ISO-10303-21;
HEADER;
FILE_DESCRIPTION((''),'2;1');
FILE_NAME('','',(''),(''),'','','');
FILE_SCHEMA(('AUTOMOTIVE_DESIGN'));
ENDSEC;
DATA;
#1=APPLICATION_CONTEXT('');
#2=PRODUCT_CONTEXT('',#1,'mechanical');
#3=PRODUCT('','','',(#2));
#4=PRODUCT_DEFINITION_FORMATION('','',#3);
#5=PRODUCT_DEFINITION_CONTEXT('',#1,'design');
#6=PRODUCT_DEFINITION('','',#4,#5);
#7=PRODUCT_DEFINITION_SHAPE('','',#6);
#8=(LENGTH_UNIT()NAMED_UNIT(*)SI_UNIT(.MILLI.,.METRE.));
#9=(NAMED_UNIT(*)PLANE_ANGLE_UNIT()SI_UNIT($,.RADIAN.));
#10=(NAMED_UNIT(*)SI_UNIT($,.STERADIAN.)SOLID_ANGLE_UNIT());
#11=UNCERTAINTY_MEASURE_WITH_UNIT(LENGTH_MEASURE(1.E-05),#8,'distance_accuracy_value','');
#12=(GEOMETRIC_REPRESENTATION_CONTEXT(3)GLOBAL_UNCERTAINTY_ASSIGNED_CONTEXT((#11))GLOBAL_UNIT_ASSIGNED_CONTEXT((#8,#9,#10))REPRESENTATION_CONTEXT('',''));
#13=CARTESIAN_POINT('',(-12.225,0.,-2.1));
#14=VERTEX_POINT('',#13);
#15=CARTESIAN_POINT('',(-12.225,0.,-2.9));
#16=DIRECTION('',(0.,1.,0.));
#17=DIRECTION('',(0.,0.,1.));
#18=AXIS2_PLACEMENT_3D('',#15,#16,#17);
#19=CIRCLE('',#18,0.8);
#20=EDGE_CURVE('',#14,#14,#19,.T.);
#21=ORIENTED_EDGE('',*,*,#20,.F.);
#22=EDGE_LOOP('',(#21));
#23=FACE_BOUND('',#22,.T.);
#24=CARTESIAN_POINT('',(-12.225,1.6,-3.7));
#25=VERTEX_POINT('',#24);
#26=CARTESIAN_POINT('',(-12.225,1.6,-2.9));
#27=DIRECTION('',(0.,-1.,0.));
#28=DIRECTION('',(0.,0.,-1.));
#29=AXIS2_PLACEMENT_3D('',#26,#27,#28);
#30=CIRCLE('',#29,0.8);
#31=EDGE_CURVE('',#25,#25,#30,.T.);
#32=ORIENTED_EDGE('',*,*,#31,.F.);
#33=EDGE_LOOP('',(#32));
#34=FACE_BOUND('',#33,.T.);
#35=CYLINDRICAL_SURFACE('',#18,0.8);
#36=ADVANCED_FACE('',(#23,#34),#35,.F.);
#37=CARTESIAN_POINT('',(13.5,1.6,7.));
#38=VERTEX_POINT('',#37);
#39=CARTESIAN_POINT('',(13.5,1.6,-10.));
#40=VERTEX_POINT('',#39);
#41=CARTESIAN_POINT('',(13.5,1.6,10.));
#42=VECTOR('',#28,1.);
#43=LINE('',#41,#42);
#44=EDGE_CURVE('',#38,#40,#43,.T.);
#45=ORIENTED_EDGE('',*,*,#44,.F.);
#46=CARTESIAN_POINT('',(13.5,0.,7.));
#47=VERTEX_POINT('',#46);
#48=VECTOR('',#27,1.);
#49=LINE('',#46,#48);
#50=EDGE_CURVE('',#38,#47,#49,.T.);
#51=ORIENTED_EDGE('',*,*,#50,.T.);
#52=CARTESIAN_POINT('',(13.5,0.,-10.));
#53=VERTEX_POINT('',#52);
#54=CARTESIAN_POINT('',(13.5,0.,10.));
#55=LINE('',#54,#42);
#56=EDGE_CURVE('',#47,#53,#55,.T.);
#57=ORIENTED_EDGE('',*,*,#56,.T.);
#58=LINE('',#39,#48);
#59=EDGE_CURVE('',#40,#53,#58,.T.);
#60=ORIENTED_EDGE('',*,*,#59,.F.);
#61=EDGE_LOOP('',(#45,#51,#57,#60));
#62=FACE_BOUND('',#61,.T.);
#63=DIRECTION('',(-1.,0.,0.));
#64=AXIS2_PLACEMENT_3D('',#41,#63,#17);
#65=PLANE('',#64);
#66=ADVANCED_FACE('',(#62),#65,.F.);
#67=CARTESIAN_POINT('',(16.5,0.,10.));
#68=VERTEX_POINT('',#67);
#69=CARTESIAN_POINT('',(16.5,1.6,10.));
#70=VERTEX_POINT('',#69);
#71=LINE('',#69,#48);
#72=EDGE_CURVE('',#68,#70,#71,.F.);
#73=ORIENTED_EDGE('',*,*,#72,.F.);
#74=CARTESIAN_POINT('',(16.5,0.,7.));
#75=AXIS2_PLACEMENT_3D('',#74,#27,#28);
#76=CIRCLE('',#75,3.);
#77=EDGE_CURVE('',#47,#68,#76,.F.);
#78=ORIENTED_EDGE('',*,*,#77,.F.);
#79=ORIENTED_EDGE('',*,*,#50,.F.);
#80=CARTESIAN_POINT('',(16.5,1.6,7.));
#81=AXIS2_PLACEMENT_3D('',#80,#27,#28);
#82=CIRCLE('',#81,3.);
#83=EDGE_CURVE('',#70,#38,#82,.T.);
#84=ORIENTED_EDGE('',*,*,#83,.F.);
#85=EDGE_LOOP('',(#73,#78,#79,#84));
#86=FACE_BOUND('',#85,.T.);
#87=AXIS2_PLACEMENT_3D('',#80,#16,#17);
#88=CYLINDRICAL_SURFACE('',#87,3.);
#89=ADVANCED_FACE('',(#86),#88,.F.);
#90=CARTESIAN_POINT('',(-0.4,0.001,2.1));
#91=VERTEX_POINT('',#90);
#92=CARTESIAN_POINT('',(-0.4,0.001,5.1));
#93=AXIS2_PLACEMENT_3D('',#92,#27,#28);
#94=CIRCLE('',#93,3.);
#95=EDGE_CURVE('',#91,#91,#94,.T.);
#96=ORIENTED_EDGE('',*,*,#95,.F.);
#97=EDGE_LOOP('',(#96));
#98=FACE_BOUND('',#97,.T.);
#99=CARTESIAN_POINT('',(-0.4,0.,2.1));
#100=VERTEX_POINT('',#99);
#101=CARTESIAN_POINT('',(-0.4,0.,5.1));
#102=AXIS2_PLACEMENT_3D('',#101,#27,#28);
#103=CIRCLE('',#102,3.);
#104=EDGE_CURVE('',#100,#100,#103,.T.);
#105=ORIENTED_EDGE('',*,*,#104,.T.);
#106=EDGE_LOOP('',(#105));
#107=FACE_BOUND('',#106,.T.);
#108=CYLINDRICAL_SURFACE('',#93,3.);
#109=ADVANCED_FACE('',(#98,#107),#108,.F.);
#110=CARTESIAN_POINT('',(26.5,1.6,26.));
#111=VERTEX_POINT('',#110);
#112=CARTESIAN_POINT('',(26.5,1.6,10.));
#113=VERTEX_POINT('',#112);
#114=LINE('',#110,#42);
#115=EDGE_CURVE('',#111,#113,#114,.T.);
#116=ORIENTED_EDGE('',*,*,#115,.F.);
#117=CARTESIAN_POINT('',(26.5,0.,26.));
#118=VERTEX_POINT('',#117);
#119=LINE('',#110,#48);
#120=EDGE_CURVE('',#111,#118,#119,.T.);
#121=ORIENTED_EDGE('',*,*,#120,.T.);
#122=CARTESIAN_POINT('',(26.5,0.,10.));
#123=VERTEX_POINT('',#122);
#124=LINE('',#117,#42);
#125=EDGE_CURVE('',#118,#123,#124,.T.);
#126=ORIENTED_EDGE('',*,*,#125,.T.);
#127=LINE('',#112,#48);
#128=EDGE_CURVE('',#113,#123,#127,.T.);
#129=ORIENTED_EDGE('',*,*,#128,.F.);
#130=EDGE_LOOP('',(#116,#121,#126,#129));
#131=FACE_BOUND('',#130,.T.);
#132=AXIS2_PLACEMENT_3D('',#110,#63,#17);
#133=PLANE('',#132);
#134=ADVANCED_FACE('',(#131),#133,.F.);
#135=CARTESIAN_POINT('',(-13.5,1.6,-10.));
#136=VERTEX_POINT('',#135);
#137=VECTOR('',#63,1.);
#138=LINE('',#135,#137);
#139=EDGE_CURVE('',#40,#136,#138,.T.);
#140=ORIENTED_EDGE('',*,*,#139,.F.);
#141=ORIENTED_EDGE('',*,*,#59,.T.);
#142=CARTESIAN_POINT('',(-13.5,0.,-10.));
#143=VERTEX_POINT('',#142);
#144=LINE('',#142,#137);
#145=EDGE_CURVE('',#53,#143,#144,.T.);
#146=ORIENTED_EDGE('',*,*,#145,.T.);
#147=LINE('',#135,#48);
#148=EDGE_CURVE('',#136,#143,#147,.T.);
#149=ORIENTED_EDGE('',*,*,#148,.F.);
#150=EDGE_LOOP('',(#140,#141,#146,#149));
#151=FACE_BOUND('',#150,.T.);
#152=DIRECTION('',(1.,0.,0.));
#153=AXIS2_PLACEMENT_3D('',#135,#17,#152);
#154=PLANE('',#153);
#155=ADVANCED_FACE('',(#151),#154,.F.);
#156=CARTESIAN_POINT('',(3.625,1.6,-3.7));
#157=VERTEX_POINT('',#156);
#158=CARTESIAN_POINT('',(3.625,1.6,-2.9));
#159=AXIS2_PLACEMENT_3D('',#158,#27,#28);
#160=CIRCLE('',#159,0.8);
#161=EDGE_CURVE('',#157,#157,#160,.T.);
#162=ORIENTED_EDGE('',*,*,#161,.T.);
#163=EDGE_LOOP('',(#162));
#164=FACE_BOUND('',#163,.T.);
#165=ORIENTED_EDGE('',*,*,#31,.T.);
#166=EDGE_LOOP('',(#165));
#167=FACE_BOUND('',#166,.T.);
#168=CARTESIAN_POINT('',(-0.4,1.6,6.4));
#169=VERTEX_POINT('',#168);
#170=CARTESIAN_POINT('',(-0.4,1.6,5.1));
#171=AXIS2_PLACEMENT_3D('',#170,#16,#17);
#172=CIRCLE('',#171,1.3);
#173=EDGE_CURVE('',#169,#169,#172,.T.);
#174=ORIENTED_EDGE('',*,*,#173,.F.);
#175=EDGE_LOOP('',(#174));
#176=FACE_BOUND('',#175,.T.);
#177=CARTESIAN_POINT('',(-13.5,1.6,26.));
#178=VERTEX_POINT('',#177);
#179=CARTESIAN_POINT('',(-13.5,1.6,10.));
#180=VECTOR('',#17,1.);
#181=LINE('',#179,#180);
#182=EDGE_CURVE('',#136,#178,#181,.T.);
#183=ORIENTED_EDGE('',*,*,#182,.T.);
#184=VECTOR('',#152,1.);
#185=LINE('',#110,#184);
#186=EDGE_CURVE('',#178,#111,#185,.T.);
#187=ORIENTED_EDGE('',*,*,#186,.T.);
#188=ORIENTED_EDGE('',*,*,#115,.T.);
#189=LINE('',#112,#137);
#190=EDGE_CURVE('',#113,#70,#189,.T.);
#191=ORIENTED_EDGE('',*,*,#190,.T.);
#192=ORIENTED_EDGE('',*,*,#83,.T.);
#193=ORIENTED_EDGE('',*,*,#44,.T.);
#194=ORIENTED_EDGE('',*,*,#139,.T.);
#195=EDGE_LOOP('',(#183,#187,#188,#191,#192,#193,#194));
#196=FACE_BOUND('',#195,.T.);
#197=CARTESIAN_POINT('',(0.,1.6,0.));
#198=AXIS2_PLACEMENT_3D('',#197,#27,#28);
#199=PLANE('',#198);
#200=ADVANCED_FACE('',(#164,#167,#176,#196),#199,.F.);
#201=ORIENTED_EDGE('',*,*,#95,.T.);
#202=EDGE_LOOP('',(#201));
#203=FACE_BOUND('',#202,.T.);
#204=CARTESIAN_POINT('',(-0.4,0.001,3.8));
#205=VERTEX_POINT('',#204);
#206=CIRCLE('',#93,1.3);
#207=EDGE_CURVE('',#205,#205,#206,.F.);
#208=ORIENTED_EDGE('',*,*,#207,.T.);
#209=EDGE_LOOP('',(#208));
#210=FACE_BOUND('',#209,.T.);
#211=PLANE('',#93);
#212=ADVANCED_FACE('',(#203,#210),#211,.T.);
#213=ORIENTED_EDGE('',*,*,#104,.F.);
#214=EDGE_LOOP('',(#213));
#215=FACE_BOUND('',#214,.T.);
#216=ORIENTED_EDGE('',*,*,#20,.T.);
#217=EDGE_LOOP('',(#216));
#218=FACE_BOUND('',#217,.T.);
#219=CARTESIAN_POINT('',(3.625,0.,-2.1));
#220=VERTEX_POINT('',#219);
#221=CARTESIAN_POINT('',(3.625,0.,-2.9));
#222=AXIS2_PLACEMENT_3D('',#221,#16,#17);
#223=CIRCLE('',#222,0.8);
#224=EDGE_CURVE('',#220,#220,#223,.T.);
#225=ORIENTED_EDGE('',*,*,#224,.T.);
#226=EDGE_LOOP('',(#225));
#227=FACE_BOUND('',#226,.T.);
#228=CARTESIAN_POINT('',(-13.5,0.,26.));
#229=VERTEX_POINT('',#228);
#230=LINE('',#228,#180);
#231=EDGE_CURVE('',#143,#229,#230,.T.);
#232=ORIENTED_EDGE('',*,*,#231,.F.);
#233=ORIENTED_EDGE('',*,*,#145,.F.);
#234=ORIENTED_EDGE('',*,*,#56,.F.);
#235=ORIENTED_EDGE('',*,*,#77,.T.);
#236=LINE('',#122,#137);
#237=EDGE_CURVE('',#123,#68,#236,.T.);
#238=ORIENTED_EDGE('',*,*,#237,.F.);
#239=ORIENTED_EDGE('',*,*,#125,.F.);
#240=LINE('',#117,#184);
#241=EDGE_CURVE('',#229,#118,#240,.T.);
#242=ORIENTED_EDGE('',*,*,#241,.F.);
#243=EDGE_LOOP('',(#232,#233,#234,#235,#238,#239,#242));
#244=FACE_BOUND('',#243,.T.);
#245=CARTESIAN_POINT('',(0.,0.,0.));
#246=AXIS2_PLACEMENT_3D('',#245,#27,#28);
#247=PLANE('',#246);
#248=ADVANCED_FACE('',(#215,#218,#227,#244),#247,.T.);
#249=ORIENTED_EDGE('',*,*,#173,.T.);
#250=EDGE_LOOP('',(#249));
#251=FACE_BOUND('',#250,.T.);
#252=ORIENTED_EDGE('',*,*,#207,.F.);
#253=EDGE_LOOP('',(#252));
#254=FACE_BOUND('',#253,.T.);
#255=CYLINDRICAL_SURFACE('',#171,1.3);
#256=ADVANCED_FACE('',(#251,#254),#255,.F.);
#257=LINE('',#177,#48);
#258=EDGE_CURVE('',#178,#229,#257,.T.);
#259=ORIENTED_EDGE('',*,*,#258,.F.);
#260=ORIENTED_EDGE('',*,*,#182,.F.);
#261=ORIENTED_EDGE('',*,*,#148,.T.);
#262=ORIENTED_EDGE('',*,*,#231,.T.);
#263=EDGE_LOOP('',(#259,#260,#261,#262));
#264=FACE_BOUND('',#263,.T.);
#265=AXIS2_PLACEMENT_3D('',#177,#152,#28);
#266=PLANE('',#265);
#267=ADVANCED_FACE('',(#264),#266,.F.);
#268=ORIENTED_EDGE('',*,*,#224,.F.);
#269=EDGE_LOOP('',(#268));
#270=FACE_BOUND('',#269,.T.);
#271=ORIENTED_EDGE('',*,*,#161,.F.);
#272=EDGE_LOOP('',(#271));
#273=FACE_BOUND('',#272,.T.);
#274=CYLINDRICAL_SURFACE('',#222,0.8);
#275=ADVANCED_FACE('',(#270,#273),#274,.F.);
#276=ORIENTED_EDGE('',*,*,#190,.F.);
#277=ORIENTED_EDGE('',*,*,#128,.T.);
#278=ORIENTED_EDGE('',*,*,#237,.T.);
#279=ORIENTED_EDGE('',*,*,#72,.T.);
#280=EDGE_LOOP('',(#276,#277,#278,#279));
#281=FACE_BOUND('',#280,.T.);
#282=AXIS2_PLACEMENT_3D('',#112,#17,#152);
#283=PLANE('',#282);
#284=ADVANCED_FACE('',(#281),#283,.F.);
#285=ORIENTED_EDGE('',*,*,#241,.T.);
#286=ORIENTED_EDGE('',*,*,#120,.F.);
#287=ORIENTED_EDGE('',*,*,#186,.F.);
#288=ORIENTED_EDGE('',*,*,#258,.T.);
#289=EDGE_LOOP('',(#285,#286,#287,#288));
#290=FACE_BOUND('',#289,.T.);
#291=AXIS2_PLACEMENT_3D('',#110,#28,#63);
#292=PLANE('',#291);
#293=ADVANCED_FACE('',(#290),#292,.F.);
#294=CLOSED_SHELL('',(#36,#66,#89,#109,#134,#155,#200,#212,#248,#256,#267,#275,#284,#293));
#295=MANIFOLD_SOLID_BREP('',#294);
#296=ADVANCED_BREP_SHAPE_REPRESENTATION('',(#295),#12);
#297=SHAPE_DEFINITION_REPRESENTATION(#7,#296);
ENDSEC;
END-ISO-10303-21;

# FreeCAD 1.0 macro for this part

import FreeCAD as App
import Part
import Sketcher

V = App.Vector
Q = App.Units.Quantity


def edges_at(feature, points):
    """Names of the edges that pass closest to the given points."""
    edges = feature.Shape.Edges
    near = lambda p: min(range(len(edges)), key=lambda i: edges[i].distToShape(Part.Vertex(*p))[0])
    return sorted({f"Edge{near(p) + 1}" for p in points})


def add_polygon(sketch, points):
    """Adds a closed chain of lines whose ends are joined by coincident constraints."""
    first, n = sketch.GeometryCount, len(points)
    for a, b in zip(points, points[1:] + points[:1]):
        sketch.addGeometry(Part.LineSegment(App.Vector(*a, 0), App.Vector(*b, 0)), False)
    for i in range(n):
        sketch.addConstraint(Sketcher.Constraint("Coincident", first + i, 2, first + (i + 1) % n, 1))

doc = App.newDocument("Part")
body = doc.addObject("PartDesign::Body", "Body")

# Sketch on XZ plane
sketch1 = doc.addObject("Sketcher::SketchObject", "Sketch")
body.addObject(sketch1)
sketch1.AttachmentSupport = (doc.XZ_Plane, [""])
sketch1.MapMode = "FlatFace"
add_polygon(sketch1, [(-14, -10), (-14, 26), (26, 26), (26, 10), (14, 10), (14, -10)])  # lines 0-5
sketch1.addConstraint(Sketcher.Constraint("Vertical", 0))
sketch1.addConstraint(Sketcher.Constraint("Horizontal", 1))
sketch1.addConstraint(Sketcher.Constraint("Vertical", 2))
sketch1.addConstraint(Sketcher.Constraint("Horizontal", 3))
sketch1.addConstraint(Sketcher.Constraint("Vertical", 4))
sketch1.addConstraint(Sketcher.Constraint("Horizontal", 5))
sketch1.addConstraint(Sketcher.Constraint("Symmetric", 3, 2, 5, 2, -1, 1))
sketch1.addConstraint(Sketcher.Constraint("DistanceX", 1, 1, 1, 2, Q("40 mm")))
sketch1.addConstraint(Sketcher.Constraint("DistanceX", 3, 2, 3, 1, Q("13 mm")))
sketch1.addConstraint(Sketcher.Constraint("DistanceY", 0, 1, 0, 2, Q("36 mm")))
sketch1.addConstraint(Sketcher.Constraint("DistanceY", 2, 2, 2, 1, Q("16 mm")))
pad1 = doc.addObject("PartDesign::Pad", "Pad")
body.addObject(pad1)
pad1.Profile = sketch1
pad1.Length = 1.6
pad1.Reversed = True
doc.recompute()

fillet = doc.addObject("PartDesign::Fillet", "Fillet")
body.addObject(fillet)
fillet.Base = (pad1, edges_at(pad1, [(13.5, 0.8, 10)]))
fillet.Radius = 3

# Sketch on XZ plane
sketch2 = doc.addObject("Sketcher::SketchObject", "Sketch001")
body.addObject(sketch2)
sketch2.AttachmentSupport = (doc.XZ_Plane, [""])
sketch2.MapMode = "FlatFace"
sketch2.AttachmentOffset = App.Placement(V(0, 0, -1.6), App.Rotation())
sketch2.addGeometry(Part.Circle(V(-0.4, 5.1, 0), V(0, 0, 1), 1.3), False)
sketch2.addConstraint(Sketcher.Constraint("Diameter", 0, Q("2.6 mm")))
sketch2.addConstraint(Sketcher.Constraint("DistanceX", 0, 3, -1, 1, Q("0.4 mm")))
sketch2.addConstraint(Sketcher.Constraint("DistanceY", -1, 1, 0, 3, Q("5.1 mm")))
doc.recompute()
hole = doc.addObject("PartDesign::Hole", "Hole")
body.addObject(hole)
hole.Profile = sketch2
hole.ThreadType = "None"
hole.Diameter = 2.6
hole.DepthType = "ThroughAll"
hole.Reversed = True

# Sketch on XZ plane
sketch3 = doc.addObject("Sketcher::SketchObject", "Sketch002")
body.addObject(sketch3)
sketch3.AttachmentSupport = (doc.XZ_Plane, [""])
sketch3.MapMode = "FlatFace"
sketch3.AttachmentOffset = App.Placement(V(0, 0, -1.6), App.Rotation())
sketch3.addGeometry(Part.Circle(V(-12.2, -2.9, 0), V(0, 0, 1), 0.8), False)
sketch3.addGeometry(Part.Circle(V(3.6, -2.9, 0), V(0, 0, 1), 0.8), False)
sketch3.addConstraint(Sketcher.Constraint("Equal", 0, 1))
sketch3.addConstraint(Sketcher.Constraint("Horizontal", 0, 3, 1, 3))
sketch3.addConstraint(Sketcher.Constraint("Diameter", 0, Q("1.6 mm")))
sketch3.addConstraint(Sketcher.Constraint("DistanceY", 0, 3, -1, 1, Q("2.9 mm")))
sketch3.addConstraint(Sketcher.Constraint("DistanceX", 0, 3, 1, 3, Q("15.85 mm")))
sketch3.addConstraint(Sketcher.Constraint("DistanceX", 0, 3, -1, 1, Q("12.225 mm")))
pocket1 = doc.addObject("PartDesign::Pocket", "Pocket")
body.addObject(pocket1)
pocket1.Profile = sketch3
pocket1.Type = "ThroughAll"
pocket1.Midplane = True

# Sketch on XZ plane
sketch4 = doc.addObject("Sketcher::SketchObject", "Sketch003")
body.addObject(sketch4)
sketch4.AttachmentSupport = (doc.XZ_Plane, [""])
sketch4.MapMode = "FlatFace"
sketch4.addGeometry(Part.Circle(V(-0.4, 5.1, 0), V(0, 0, 1), 3), False)
sketch4.addConstraint(Sketcher.Constraint("Diameter", 0, Q("6 mm")))
sketch4.addConstraint(Sketcher.Constraint("DistanceX", 0, 3, -1, 1, Q("0.4 mm")))
sketch4.addConstraint(Sketcher.Constraint("DistanceY", -1, 1, 0, 3, Q("5.1 mm")))
pocket2 = doc.addObject("PartDesign::Pocket", "Pocket001")
body.addObject(pocket2)
pocket2.Profile = sketch4
pocket2.Length = 0.001

doc.recompute()
